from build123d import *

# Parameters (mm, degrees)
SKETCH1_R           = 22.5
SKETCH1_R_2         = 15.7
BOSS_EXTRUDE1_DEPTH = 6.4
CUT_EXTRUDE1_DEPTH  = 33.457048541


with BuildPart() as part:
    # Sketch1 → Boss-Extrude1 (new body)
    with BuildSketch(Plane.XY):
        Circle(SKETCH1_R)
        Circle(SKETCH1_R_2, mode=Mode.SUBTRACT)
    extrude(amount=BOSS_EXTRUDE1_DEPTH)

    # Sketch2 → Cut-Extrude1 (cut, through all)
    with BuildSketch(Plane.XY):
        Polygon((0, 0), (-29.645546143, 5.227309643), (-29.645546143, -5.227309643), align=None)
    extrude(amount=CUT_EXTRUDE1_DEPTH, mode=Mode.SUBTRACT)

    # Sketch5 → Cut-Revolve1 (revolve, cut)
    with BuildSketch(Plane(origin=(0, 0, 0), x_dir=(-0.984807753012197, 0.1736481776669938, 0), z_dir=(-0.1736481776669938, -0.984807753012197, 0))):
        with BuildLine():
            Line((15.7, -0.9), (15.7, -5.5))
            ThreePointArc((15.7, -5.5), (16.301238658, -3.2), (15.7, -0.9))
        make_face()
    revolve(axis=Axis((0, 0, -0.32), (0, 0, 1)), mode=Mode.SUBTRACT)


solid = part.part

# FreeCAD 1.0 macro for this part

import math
import FreeCAD as App
import Part
import Sketcher

V = App.Vector
Q = App.Units.Quantity

doc = App.newDocument("Part")
params = doc.addObject("Spreadsheet::Sheet", "Params")
for row, (alias, value) in enumerate([
    ("sketch1_diameter", "45 mm"),
    ("sketch1_diameter2", "31.4 mm"),
    ("pad1_length", "6.4 mm"),
    ("sketch3_height", "4.6 mm"),
    ("groove_angle", "360 deg"),
], start=1):
    params.set(f"A{row}", alias)
    params.set(f"B{row}", "=" + value)
    params.setAlias(f"B{row}", alias)

body = doc.addObject("PartDesign::Body", "Body")

# Sketch on XY plane
sketch1 = body.newObject("Sketcher::SketchObject", "Sketch")
sketch1.AttachmentSupport = (doc.getObject("XY_Plane"), [""])
sketch1.MapMode = "FlatFace"
sketch1.addGeometry(Part.Circle(V(0, 0, 0), V(0, 0, 1), 22), False)
sketch1.addGeometry(Part.Circle(V(0, 0, 0), V(0, 0, 1), 16), False)
sketch1.addConstraint(Sketcher.Constraint("Coincident", 0, 3, -1, 1))
sketch1.addConstraint(Sketcher.Constraint("Coincident", 1, 3, -1, 1))
sketch1.addConstraint(Sketcher.Constraint("Diameter", 0, 45.0))
sketch1.addConstraint(Sketcher.Constraint("Diameter", 1, 31.4))
sketch1.setExpression("Constraints[2]", "Params.sketch1_diameter")
sketch1.setExpression("Constraints[3]", "Params.sketch1_diameter2")
pad1 = body.newObject("PartDesign::Pad", "Pad")
pad1.Profile = sketch1
pad1.setExpression("Length", "Params.pad1_length")

# Sketch on XY plane
sketch2 = body.newObject("Sketcher::SketchObject", "Sketch001")
sketch2.AttachmentSupport = (doc.getObject("XY_Plane"), [""])
sketch2.MapMode = "FlatFace"
sketch2.addGeometry(Part.LineSegment(V(0, 0, 0), V(-30, 5, 0)), False)
sketch2.addGeometry(Part.LineSegment(V(-30, 5, 0), V(-30, -5, 0)), False)
sketch2.addGeometry(Part.LineSegment(V(-30, -5, 0), V(0, 0, 0)), False)
sketch2.addConstraint(Sketcher.Constraint("Coincident", 0, 2, 1, 1))
sketch2.addConstraint(Sketcher.Constraint("Coincident", 1, 2, 2, 1))
sketch2.addConstraint(Sketcher.Constraint("Coincident", 2, 2, 0, 1))
sketch2.addConstraint(Sketcher.Constraint("Vertical", 1))
sketch2.addConstraint(Sketcher.Constraint("Coincident", 2, 2, -1, 1))
sketch2.addConstraint(Sketcher.Constraint("Equal", 0, 2))
sketch2.addConstraint(Sketcher.Constraint("Angle", 0, Q("170 deg")))
sketch2.addConstraint(Sketcher.Constraint("DistanceY", 1, 2, 1, 1, 10.454619))
pocket1 = body.newObject("PartDesign::Pocket", "Pocket")
pocket1.Profile = sketch2
pocket1.Type = "ThroughAll"
pocket1.Reversed = True

# Sketch on an angled plane
sketch3 = body.newObject("Sketcher::SketchObject", "Sketch002")
sketch3.Placement = App.Placement(V(0, 0, 0), App.Rotation(V(-0.984807753, 0.173648178, 0), V(0, 0, -1), V(-0.173648178, -0.984807753, 0), "ZXY"))
sketch3.addGeometry(Part.LineSegment(V(15.7, -0.9, 0), V(15.7, -5.5, 0)), False)
sketch3.addGeometry(Part.ArcOfCircle(Part.Circle(V(11.6, -3.2, 0), V(0, 0, 1), 4.7), math.radians(-29), math.radians(29)), False)
sketch3.addConstraint(Sketcher.Constraint("Coincident", 0, 1, 1, 2))
sketch3.addConstraint(Sketcher.Constraint("Coincident", 1, 1, 0, 2))
sketch3.addConstraint(Sketcher.Constraint("Vertical", 0))
sketch3.addConstraint(Sketcher.Constraint("DistanceY", 0, 2, 0, 1, 4.6))
sketch3.addConstraint(Sketcher.Constraint("DistanceY", 1, 3, -1, 1, 3.2))
sketch3.addConstraint(Sketcher.Constraint("DistanceX", -1, 1, 0, 1, 15.7))
sketch3.addConstraint(Sketcher.Constraint("Radius", 1, 4.699871))
sketch3.setExpression("Constraints[3]", "Params.sketch3_height")
groove = body.newObject("PartDesign::Groove", "Groove")
groove.Profile = sketch3
groove.ReferenceAxis = (sketch3, ["V_Axis"])
groove.setExpression("Angle", "Params.groove_angle")

doc.recompute()
